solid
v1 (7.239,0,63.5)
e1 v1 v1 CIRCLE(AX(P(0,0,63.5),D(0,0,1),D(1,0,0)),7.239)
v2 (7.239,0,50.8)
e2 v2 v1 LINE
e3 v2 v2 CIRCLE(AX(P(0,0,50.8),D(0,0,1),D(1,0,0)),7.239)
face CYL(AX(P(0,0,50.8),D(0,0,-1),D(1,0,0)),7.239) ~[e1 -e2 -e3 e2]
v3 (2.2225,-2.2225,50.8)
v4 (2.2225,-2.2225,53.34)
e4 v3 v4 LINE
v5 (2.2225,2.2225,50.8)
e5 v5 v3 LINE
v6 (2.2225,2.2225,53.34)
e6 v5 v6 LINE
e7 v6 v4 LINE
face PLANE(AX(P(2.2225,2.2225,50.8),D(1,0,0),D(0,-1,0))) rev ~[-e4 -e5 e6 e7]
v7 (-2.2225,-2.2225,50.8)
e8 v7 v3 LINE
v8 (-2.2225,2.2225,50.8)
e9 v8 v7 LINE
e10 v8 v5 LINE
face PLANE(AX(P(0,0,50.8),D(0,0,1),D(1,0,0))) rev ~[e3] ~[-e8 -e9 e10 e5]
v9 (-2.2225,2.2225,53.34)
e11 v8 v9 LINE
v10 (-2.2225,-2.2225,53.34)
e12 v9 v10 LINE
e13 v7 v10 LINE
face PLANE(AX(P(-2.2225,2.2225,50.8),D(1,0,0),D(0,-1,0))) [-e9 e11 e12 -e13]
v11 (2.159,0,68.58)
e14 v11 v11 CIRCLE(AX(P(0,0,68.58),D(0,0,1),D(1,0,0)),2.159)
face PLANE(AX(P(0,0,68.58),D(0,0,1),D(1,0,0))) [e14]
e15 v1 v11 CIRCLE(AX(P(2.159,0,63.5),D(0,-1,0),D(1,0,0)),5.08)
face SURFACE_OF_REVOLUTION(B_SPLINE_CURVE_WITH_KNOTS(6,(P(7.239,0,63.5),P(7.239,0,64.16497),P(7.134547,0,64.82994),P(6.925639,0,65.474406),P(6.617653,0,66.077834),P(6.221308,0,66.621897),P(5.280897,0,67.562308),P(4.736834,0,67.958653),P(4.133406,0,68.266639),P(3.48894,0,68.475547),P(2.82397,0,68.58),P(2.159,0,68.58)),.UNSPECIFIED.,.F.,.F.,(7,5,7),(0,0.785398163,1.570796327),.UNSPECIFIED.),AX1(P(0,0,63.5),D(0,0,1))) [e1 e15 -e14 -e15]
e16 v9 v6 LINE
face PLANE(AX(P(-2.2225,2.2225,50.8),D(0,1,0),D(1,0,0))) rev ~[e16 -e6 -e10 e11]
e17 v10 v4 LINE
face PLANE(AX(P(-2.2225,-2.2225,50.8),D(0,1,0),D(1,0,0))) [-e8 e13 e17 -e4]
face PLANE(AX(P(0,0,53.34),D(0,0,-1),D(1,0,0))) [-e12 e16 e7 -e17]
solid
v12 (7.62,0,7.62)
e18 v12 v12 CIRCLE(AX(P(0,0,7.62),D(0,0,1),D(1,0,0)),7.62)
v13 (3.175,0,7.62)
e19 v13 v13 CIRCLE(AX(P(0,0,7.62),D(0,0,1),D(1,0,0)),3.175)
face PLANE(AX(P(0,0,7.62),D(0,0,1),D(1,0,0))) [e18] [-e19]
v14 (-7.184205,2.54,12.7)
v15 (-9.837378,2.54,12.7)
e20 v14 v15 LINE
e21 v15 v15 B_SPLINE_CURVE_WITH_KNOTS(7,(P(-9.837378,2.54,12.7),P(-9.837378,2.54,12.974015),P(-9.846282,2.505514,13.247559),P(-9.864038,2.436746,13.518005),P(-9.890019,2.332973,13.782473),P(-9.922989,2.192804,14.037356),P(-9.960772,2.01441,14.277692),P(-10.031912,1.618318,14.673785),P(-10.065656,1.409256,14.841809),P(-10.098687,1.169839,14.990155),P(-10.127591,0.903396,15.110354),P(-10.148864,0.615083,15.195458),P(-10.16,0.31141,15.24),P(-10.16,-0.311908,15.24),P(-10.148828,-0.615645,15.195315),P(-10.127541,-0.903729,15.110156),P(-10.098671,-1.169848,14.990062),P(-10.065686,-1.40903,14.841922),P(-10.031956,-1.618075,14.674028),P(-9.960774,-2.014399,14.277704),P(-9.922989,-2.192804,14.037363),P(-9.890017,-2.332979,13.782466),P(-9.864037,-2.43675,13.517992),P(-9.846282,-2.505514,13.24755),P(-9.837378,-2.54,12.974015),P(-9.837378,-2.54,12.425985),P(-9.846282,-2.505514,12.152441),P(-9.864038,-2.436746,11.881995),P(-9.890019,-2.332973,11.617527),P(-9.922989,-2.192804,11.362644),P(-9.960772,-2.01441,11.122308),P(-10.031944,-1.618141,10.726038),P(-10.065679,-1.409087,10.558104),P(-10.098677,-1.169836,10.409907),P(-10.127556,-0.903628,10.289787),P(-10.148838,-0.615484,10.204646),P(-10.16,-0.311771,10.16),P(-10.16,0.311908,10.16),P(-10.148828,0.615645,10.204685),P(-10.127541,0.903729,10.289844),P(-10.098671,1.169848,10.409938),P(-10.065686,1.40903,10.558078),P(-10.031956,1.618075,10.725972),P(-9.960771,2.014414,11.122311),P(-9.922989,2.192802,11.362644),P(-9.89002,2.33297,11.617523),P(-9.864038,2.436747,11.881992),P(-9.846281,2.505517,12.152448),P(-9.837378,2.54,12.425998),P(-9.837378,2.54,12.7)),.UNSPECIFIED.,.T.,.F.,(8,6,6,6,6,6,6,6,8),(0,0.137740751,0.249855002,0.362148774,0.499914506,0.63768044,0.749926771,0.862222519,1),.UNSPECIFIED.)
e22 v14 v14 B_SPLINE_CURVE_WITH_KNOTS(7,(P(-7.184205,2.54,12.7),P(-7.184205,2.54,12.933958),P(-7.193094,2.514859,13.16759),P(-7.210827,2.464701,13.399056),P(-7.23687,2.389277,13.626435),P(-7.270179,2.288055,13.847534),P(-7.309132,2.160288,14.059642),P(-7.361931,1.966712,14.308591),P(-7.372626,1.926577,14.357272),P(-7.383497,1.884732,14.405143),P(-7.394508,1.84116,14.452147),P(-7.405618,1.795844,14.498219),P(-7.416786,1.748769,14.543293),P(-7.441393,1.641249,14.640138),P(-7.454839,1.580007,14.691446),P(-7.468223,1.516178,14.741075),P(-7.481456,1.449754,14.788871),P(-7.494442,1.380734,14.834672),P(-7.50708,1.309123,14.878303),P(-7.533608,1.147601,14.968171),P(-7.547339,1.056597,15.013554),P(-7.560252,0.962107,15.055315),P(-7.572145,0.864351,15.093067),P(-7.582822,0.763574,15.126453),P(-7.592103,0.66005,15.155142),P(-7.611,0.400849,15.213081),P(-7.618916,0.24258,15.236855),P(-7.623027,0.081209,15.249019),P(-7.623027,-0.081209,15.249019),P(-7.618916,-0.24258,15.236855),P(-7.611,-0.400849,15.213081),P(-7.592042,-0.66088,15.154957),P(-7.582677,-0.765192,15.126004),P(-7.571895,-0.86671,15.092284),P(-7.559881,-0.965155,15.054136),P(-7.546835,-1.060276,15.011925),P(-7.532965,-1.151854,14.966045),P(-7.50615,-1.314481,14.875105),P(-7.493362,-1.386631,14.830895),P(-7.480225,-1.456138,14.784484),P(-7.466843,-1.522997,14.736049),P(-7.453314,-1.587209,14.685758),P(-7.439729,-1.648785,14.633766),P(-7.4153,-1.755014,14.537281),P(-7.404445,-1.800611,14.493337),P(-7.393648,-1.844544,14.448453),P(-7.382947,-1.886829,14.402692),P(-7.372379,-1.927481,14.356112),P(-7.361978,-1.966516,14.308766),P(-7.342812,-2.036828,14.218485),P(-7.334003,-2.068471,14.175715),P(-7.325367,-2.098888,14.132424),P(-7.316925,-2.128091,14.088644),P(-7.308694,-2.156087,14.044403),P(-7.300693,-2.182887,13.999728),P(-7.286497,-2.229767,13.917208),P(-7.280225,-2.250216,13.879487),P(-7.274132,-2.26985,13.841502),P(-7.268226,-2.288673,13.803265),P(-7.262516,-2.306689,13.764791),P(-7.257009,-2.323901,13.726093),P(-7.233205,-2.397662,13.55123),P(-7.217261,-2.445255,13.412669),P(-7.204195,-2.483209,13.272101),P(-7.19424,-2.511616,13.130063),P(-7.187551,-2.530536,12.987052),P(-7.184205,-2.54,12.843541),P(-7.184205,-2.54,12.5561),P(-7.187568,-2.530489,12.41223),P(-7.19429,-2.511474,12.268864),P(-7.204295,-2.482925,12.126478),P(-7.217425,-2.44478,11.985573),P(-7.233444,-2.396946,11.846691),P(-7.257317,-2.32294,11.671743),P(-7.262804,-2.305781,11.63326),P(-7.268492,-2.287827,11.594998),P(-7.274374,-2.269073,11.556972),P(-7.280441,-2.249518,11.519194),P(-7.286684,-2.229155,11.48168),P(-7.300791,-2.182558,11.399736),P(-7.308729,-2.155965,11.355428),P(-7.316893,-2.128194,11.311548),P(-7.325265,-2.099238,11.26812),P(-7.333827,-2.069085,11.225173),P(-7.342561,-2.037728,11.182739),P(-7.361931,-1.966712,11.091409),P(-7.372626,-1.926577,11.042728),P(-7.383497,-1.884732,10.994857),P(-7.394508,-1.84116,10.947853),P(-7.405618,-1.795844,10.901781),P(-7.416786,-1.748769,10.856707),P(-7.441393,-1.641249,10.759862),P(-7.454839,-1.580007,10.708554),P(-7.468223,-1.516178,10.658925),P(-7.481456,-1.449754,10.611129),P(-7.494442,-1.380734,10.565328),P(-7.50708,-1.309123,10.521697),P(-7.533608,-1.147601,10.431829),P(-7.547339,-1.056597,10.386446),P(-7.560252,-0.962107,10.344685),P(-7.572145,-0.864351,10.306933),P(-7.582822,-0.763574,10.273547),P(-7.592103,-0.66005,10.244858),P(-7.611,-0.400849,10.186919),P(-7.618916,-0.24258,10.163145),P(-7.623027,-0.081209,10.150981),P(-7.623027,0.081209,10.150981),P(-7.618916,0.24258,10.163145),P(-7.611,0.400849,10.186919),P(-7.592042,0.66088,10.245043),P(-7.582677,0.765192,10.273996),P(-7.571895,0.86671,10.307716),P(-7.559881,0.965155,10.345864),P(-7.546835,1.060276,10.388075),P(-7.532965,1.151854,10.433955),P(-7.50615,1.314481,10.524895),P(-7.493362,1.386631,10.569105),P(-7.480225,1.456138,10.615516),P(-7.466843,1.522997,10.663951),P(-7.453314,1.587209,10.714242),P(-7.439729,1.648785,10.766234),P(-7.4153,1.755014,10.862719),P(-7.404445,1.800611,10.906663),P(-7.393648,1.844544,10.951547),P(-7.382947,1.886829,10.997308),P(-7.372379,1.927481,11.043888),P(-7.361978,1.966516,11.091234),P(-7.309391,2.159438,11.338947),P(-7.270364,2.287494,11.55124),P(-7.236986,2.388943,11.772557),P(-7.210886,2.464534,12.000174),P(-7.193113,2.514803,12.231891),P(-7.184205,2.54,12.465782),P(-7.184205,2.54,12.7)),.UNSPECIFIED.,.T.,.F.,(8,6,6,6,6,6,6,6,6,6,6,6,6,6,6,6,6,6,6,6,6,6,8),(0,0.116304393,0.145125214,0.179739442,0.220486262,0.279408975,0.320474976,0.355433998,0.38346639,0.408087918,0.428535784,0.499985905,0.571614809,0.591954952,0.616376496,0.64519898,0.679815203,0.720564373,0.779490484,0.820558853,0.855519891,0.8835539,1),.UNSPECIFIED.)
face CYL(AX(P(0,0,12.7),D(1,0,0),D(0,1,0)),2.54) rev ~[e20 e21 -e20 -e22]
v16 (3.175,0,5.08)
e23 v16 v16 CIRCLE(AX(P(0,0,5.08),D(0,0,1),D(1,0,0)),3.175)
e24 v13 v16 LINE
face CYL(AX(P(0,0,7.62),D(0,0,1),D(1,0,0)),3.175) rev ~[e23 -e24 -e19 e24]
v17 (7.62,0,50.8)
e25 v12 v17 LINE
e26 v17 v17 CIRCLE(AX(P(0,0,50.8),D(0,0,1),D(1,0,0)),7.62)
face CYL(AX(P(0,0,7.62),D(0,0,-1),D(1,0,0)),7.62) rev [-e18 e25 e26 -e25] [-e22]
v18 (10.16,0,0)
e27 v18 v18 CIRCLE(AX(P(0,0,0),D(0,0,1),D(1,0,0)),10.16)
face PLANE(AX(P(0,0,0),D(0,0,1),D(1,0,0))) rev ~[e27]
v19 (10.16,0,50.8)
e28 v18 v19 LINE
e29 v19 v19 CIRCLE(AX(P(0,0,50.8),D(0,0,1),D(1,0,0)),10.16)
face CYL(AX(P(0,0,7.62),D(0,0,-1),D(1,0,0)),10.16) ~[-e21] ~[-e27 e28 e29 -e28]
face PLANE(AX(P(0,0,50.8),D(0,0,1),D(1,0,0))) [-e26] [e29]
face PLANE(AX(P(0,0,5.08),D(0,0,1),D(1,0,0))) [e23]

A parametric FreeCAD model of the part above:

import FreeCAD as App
import Part
import Sketcher

V = App.Vector
Q = App.Units.Quantity


def edges_at(feature, points):
    """Names of the edges that pass closest to the given points."""
    edges = feature.Shape.Edges
    near = lambda p: min(range(len(edges)), key=lambda i: edges[i].distToShape(Part.Vertex(*p))[0])
    return sorted({f"Edge{near(p) + 1}" for p in points})


def add_polygon(sketch, points):
    """Adds a closed chain of lines whose ends are joined by coincident constraints."""
    first, n = sketch.GeometryCount, len(points)
    for a, b in zip(points, points[1:] + points[:1]):
        sketch.addGeometry(Part.LineSegment(App.Vector(*a, 0), App.Vector(*b, 0)), False)
    for i in range(n):
        sketch.addConstraint(Sketcher.Constraint("Coincident", first + i, 2, first + (i + 1) % n, 1))

doc = App.newDocument("Part")
body = doc.addObject("PartDesign::Body", "Body")

# Sketch on XY plane
sketch1 = body.newObject("Sketcher::SketchObject", "Sketch")
sketch1.AttachmentSupport = (doc.getObject("XY_Plane"), [""])
sketch1.MapMode = "FlatFace"
sketch1.addGeometry(Part.Circle(V(0, 0, 0), V(0, 0, 1), 10), False)
sketch1.addConstraint(Sketcher.Constraint("Coincident", 0, 3, -1, 1))
sketch1.addConstraint(Sketcher.Constraint("Diameter", 0, Q("0.8 in")))
pad1 = body.newObject("PartDesign::Pad", "Pad")
pad1.Profile = sketch1
pad1.Length = Q("0.3 in")

# Sketch on XY plane
sketch2 = body.newObject("Sketcher::SketchObject", "Sketch001")
sketch2.AttachmentSupport = (doc.getObject("XY_Plane"), [""])
sketch2.MapMode = "FlatFace"
sketch2.AttachmentOffset = App.Placement(V(0, 0, 0.3 * 25.4), App.Rotation())
sketch2.addGeometry(Part.Circle(V(0, 0, 0), V(0, 0, 1), 10), False)
sketch2.addGeometry(Part.Circle(V(0, 0, 0), V(0, 0, 1), 8), False)
sketch2.addConstraint(Sketcher.Constraint("Coincident", 0, 3, -1, 1))
sketch2.addConstraint(Sketcher.Constraint("Coincident", 1, 3, -1, 1))
sketch2.addConstraint(Sketcher.Constraint("Diameter", 0, Q("0.8 in")))
sketch2.addConstraint(Sketcher.Constraint("Diameter", 1, Q("0.6 in")))
pad2 = body.newObject("PartDesign::Pad", "Pad001")
pad2.Profile = sketch2
pad2.Length = Q("1.7 in")

# Sketch on XY plane
sketch3 = body.newObject("Sketcher::SketchObject", "Sketch002")
sketch3.AttachmentSupport = (doc.getObject("XY_Plane"), [""])
sketch3.MapMode = "FlatFace"
sketch3.AttachmentOffset = App.Placement(V(0, 0, 0.3 * 25.4), App.Rotation())
sketch3.addGeometry(Part.Circle(V(0, 0, 0), V(0, 0, 1), 3.2), False)
sketch3.addConstraint(Sketcher.Constraint("Coincident", 0, 3, -1, 1))
sketch3.addConstraint(Sketcher.Constraint("Diameter", 0, Q("0.25 in")))
pocket1 = body.newObject("PartDesign::Pocket", "Pocket")
pocket1.Profile = sketch3
pocket1.Length = Q("0.1 in")

# Sketch on YZ plane
sketch4 = body.newObject("Sketcher::SketchObject", "Sketch003")
sketch4.AttachmentSupport = (doc.getObject("YZ_Plane"), [""])
sketch4.MapMode = "FlatFace"
sketch4.addGeometry(Part.Circle(V(0, 12.7, 0), V(0, 0, 1), 2.5), False)
sketch4.addConstraint(Sketcher.Constraint("PointOnObject", 0, 3, -2))
sketch4.addConstraint(Sketcher.Constraint("Diameter", 0, Q("0.2 in")))
sketch4.addConstraint(Sketcher.Constraint("DistanceY", -1, 1, 0, 3, Q("0.5 in")))
pocket2 = body.newObject("PartDesign::Pocket", "Pocket001")
pocket2.Profile = sketch4
pocket2.Length = Q("1 in")
body2 = doc.addObject("PartDesign::Body", "Body001")

# Sketch on XY plane
sketch5 = body2.newObject("Sketcher::SketchObject", "Sketch004")
sketch5.AttachmentSupport = (doc.getObject("XY_Plane001"), [""])
sketch5.MapMode = "FlatFace"
sketch5.AttachmentOffset = App.Placement(V(0, 0, 2 * 25.4), App.Rotation())
sketch5.addGeometry(Part.Circle(V(0, 0, 0), V(0, 0, 1), 7), False)
sketch5.addConstraint(Sketcher.Constraint("Coincident", 0, 3, -1, 1))
sketch5.addConstraint(Sketcher.Constraint("Diameter", 0, Q("0.57 in")))
pad3 = body2.newObject("PartDesign::Pad", "Pad002")
pad3.Profile = sketch5
pad3.Length = Q("0.7 in")
doc.recompute()

fillet = body2.newObject("PartDesign::Fillet", "Fillet")
fillet.Base = (pad3, edges_at(pad3, [(-7.239, 0, 68.58)]))
fillet.Radius = Q("0.2 in")

# Sketch on XY plane
sketch6 = body2.newObject("Sketcher::SketchObject", "Sketch005")
sketch6.AttachmentSupport = (doc.getObject("XY_Plane001"), [""])
sketch6.MapMode = "FlatFace"
sketch6.AttachmentOffset = App.Placement(V(0, 0, 2 * 25.4), App.Rotation())
add_polygon(sketch6, [(-2.2, -2.2), (-2.2, 2.2), (2.2, 2.2), (2.2, -2.2)])  # lines 0-3
sketch6.addConstraint(Sketcher.Constraint("Vertical", 0))
sketch6.addConstraint(Sketcher.Constraint("Horizontal", 1))
sketch6.addConstraint(Sketcher.Constraint("Vertical", 2))
sketch6.addConstraint(Sketcher.Constraint("Horizontal", 3))
sketch6.addConstraint(Sketcher.Constraint("Symmetric", 0, 2, 2, 2, -1, 1))
sketch6.addConstraint(Sketcher.Constraint("Equal", 3, 0))
sketch6.addConstraint(Sketcher.Constraint("DistanceX", 1, 1, 1, 2, Q("0.175 in")))
pocket3 = body2.newObject("PartDesign::Pocket", "Pocket002")
pocket3.Profile = sketch6
pocket3.Length = Q("0.1 in")
pocket3.Reversed = True

doc.recompute()
